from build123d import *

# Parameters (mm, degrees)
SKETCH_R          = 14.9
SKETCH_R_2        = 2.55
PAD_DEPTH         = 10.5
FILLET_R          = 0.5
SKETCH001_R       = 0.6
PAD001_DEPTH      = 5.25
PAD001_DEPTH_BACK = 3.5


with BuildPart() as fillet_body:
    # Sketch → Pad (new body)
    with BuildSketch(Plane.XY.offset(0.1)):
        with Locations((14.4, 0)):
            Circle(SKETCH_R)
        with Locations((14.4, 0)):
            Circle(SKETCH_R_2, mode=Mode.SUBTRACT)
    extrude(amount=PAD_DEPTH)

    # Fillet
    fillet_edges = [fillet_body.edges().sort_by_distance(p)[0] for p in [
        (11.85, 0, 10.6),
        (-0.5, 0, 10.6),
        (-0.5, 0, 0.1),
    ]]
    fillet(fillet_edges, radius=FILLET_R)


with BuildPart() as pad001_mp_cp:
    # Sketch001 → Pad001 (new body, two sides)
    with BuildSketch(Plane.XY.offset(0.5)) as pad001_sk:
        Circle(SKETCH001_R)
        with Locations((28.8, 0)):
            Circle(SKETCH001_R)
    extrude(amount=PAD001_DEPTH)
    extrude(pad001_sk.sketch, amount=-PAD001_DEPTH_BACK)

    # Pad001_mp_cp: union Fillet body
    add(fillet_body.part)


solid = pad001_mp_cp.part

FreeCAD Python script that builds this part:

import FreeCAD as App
import Part
import Sketcher
Q = App.Units.Quantity


def edges_at(feature, points):
    """Names of the edges that pass closest to the given points."""
    edges = feature.Shape.Edges
    near = lambda p: min(range(len(edges)), key=lambda i: edges[i].distToShape(Part.Vertex(*p))[0])
    return sorted({f"Edge{near(p) + 1}" for p in points})

doc = App.newDocument("Part")
body = doc.addObject("PartDesign::Body", "Body")

# Sketch on XY plane
sketch1 = doc.addObject("Sketcher::SketchObject", "Sketch")
body.addObject(sketch1)
sketch1.AttachmentSupport = (doc.XY_Plane, [""])
sketch1.MapMode = "FlatFace"
sketch1.AttachmentOffset = App.Placement(App.Vector(0, 0, 0.1), App.Rotation())
sketch1.addGeometry([
    Part.Circle(App.Vector(14.4, 0, 0), App.Vector(0, 0, 1), 14.9),
    Part.Circle(App.Vector(14.4, 0, 0), App.Vector(0, 0, 1), 2.5),
], False)
sketch1.addConstraint([
    Sketcher.Constraint("Coincident", 1, 3, 0, 3),
    Sketcher.Constraint("PointOnObject", 0, 3, -1),
    Sketcher.Constraint("Diameter", 0, Q("29.8 mm")),
    Sketcher.Constraint("Diameter", 1, Q("5.1 mm")),
    Sketcher.Constraint("DistanceX", -1, 1, 0, 3, Q("14.4 mm")),
])
pad1 = doc.addObject("PartDesign::Pad", "Pad")
body.addObject(pad1)
pad1.Profile = sketch1
pad1.Length = 10.5
doc.recompute()

fillet = doc.addObject("PartDesign::Fillet", "Fillet")
body.addObject(fillet)
fillet.Base = (pad1, edges_at(pad1, [(11.85, 0, 10.6), (-0.5, 0, 10.6), (-0.5, 0, 0.1)]))
fillet.Radius = 0.5
body2 = doc.addObject("PartDesign::Body", "Body001")
body2.AllowCompound = True

# Sketch on XY plane
sketch2 = doc.addObject("Sketcher::SketchObject", "Sketch001")
body2.addObject(sketch2)
sketch2.AttachmentSupport = (doc.getObject("XY_Plane001"), [""])
sketch2.MapMode = "FlatFace"
sketch2.AttachmentOffset = App.Placement(App.Vector(0, 0, 0.5), App.Rotation())
sketch2.addGeometry([
    Part.Circle(App.Vector(0, 0, 0), App.Vector(0, 0, 1), 0.6),
    Part.Circle(App.Vector(28.8, 0, 0), App.Vector(0, 0, 1), 0.6),
], False)
sketch2.addConstraint([
    Sketcher.Constraint("Coincident", 0, 3, -1, 1),
    Sketcher.Constraint("Equal", 0, 1),
    Sketcher.Constraint("PointOnObject", 1, 3, -1),
    Sketcher.Constraint("Diameter", 0, Q("1.2 mm")),
    Sketcher.Constraint("DistanceX", -1, 1, 1, 3, Q("28.8 mm")),
])
pad2 = doc.addObject("PartDesign::Pad", "Pad001")
body2.addObject(pad2)
pad2.Profile = sketch2
pad2.Type = "TwoLengths"
pad2.Length = 5.25
pad2.Length2 = 3.5
doc.recompute()

boolean = doc.addObject("PartDesign::Boolean", "Boolean")
body2.addObject(boolean)
boolean.Type = "Fuse"
boolean.addObjects([body])

doc.recompute()
